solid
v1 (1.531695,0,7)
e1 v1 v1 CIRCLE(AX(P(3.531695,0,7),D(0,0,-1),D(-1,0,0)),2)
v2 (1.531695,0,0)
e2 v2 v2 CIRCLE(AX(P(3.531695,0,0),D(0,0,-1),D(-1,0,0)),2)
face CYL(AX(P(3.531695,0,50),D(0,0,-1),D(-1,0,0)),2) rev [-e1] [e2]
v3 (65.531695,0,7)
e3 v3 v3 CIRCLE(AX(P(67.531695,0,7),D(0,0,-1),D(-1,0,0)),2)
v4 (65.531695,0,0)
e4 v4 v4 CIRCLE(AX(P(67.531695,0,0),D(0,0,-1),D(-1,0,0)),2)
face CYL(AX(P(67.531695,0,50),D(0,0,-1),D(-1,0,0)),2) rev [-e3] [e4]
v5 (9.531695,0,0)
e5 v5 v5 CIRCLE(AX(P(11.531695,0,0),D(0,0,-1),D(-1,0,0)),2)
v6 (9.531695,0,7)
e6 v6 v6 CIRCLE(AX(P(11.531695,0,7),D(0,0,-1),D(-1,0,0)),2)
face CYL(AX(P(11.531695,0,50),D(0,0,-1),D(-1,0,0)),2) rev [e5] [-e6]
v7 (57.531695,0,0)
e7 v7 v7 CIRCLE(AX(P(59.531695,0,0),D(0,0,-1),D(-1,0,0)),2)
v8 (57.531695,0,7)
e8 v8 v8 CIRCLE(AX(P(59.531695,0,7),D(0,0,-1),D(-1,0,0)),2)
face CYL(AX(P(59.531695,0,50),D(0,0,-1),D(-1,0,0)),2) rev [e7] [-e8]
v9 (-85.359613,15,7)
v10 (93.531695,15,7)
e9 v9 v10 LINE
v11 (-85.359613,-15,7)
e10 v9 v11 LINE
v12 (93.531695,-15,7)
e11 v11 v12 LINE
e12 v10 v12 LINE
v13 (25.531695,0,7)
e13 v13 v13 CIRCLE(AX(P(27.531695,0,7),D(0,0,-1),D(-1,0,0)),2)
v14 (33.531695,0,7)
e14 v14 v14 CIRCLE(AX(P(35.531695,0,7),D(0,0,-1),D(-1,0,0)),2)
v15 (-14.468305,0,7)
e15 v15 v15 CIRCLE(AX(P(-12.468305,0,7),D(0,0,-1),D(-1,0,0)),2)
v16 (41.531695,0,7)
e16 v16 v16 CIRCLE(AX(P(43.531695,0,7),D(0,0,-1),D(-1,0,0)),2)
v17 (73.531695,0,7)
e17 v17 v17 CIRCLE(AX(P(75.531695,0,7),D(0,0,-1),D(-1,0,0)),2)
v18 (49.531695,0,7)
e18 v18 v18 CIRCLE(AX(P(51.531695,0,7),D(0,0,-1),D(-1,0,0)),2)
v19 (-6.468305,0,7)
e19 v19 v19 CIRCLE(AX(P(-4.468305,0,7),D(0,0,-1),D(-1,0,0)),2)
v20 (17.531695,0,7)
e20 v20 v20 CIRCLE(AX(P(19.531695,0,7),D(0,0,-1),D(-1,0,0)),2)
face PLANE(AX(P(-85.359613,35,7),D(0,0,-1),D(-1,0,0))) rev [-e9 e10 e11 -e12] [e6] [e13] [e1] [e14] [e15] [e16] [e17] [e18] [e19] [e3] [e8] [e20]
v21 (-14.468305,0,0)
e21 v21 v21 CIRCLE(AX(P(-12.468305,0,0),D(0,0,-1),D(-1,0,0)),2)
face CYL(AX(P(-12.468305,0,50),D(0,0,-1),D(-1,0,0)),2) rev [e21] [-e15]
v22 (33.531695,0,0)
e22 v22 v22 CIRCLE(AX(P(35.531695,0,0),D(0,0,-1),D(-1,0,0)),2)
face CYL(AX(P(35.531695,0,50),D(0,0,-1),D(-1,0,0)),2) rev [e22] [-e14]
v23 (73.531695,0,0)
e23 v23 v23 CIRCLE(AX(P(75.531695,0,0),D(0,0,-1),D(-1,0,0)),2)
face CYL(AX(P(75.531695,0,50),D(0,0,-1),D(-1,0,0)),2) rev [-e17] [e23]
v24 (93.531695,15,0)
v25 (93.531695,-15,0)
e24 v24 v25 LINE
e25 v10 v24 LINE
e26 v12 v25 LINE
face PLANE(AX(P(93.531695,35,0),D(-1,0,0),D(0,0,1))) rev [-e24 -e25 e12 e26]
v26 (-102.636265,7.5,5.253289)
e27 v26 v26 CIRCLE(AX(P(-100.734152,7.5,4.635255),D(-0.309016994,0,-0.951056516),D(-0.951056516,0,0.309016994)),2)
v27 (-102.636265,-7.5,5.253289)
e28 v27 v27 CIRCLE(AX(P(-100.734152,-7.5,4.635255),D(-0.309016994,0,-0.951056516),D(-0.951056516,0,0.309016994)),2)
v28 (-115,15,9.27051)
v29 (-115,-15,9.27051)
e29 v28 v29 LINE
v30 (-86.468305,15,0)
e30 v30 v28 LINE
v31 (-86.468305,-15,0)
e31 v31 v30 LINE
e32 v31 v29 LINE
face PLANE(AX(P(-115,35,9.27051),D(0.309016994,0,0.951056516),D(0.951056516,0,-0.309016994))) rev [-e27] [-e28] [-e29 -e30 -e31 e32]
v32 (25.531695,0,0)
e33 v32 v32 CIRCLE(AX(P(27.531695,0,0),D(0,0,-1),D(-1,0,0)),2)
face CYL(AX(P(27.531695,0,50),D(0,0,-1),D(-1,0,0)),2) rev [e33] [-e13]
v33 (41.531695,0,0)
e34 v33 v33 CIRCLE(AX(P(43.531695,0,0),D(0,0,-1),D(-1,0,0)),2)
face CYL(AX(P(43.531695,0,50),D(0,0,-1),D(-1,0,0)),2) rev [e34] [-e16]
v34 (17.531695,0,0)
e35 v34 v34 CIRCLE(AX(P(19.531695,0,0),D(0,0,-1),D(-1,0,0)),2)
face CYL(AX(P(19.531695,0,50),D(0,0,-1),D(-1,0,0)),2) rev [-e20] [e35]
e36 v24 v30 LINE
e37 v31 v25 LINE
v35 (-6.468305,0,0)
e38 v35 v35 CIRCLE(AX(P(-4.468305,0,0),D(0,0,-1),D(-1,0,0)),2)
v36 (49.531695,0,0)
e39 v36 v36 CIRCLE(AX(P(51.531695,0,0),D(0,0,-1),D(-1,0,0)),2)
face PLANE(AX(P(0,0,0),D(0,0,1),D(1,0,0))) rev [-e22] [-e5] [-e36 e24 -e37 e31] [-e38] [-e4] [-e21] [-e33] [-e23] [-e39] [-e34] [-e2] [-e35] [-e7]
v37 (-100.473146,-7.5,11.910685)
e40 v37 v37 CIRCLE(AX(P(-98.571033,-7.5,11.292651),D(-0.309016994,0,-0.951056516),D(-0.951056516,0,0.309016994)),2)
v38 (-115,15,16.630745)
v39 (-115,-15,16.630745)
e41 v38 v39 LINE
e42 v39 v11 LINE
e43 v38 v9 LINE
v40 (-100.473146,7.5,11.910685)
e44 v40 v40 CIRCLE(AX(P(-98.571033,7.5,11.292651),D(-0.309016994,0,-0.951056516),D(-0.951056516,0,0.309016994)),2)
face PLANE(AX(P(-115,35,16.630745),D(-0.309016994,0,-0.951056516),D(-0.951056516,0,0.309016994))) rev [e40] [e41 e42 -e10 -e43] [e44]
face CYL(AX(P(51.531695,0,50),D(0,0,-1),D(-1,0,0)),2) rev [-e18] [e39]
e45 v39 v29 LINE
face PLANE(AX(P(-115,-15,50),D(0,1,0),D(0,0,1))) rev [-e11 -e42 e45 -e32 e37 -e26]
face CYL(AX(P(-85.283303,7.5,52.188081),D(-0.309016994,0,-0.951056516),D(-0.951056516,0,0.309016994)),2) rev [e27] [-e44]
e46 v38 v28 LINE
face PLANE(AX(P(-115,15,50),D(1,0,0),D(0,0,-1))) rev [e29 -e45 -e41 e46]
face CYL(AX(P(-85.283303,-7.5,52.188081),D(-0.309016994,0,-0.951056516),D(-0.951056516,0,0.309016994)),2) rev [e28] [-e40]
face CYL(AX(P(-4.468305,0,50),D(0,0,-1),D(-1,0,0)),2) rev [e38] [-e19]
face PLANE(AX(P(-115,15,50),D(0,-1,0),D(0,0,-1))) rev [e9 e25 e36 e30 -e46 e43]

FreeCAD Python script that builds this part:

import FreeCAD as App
import Part
import Sketcher
Q = App.Units.Quantity


def add_polygon(sketch, points):
    """Adds a closed chain of lines whose ends are joined by coincident constraints."""
    first, n = sketch.GeometryCount, len(points)
    for a, b in zip(points, points[1:] + points[:1]):
        sketch.addGeometry(Part.LineSegment(App.Vector(*a, 0), App.Vector(*b, 0)), False)
    for i in range(n):
        sketch.addConstraint(Sketcher.Constraint("Coincident", first + i, 2, first + (i + 1) % n, 1))

doc = App.newDocument("Part")
params = doc.addObject("Spreadsheet::Sheet", "Params")
for row, (alias, value) in enumerate([
    ("sketch1_width", "230 mm"),
    ("sketch1_height", "30 mm"),
    ("pad1_length", "50 mm"),
    ("sketch2_length", "30 mm"),
    ("pocket1_length", "50 mm"),
    ("sketch3_height", "50 mm"),
    ("pocket2_length", "50 mm"),
    ("sketch4_height", "43 mm"),
    ("pocket3_length", "50 mm"),
    ("sketch5_diameter", "4 mm"),
    ("pocket4_length", "50 mm"),
    ("sketch6_diameter", "4 mm"),
    ("pocket5_length", "50 mm"),
], start=1):
    params.set(f"A{row}", alias)
    params.set(f"B{row}", "=" + value)
    params.setAlias(f"B{row}", alias)

body = doc.addObject("PartDesign::Body", "Body")

# Sketch on XY plane
sketch1 = body.newObject("Sketcher::SketchObject", "Sketch")
sketch1.AttachmentSupport = (doc.getObject("XY_Plane"), [""])
sketch1.MapMode = "FlatFace"
add_polygon(sketch1, [(-115, 15), (-115, -15), (115, -15), (115, 15)])  # lines 0-3
sketch1.addConstraint(Sketcher.Constraint("Vertical", 0))
sketch1.addConstraint(Sketcher.Constraint("Horizontal", 1))
sketch1.addConstraint(Sketcher.Constraint("Vertical", 2))
sketch1.addConstraint(Sketcher.Constraint("Horizontal", 3))
sketch1.addConstraint(Sketcher.Constraint("Symmetric", 0, 2, 2, 2, -1, 1))
sketch1.addConstraint(Sketcher.Constraint("DistanceX", 1, 1, 1, 2, 230.0))
sketch1.addConstraint(Sketcher.Constraint("DistanceY", 0, 2, 0, 1, 30.0))
sketch1.setExpression("Constraints[9]", "Params.sketch1_width")
sketch1.setExpression("Constraints[10]", "Params.sketch1_height")
pad1 = body.newObject("PartDesign::Pad", "Pad")
pad1.Profile = sketch1
pad1.setExpression("Length", "Params.pad1_length")

# Sketch on XZ plane
sketch2 = body.newObject("Sketcher::SketchObject", "Sketch001")
sketch2.AttachmentSupport = (doc.getObject("XZ_Plane"), [""])
sketch2.MapMode = "FlatFace"
sketch2.AttachmentOffset = App.Placement(App.Vector(0, 0, 15), App.Rotation())
add_polygon(sketch2, [(-86, 0), (-115, 9), (-115, 0)])  # lines 0-2
sketch2.addConstraint(Sketcher.Constraint("Vertical", 1))
sketch2.addConstraint(Sketcher.Constraint("Horizontal", 2))
sketch2.addConstraint(Sketcher.Constraint("PointOnObject", 1, 2, -1))
sketch2.addConstraint(Sketcher.Constraint("Angle", 0, Q("162 deg")))
sketch2.addConstraint(Sketcher.Constraint("Distance", 0, 30.0))
sketch2.addConstraint(Sketcher.Constraint("DistanceX", 0, 2, -1, 1, 115.0))
sketch2.setExpression("Constraints[7]", "Params.sketch2_length")
pocket1 = body.newObject("PartDesign::Pocket", "Pocket")
pocket1.Profile = sketch2
pocket1.setExpression("Length", "Params.pocket1_length")

# Sketch on XZ plane
sketch3 = body.newObject("Sketcher::SketchObject", "Sketch002")
sketch3.AttachmentSupport = (doc.getObject("XZ_Plane"), [""])
sketch3.MapMode = "FlatFace"
sketch3.AttachmentOffset = App.Placement(App.Vector(0, 0, 15), App.Rotation())
add_polygon(sketch3, [(94, 50), (94, 0), (115, 0), (115, 50)])  # lines 0-3
sketch3.addConstraint(Sketcher.Constraint("Vertical", 0))
sketch3.addConstraint(Sketcher.Constraint("Horizontal", 1))
sketch3.addConstraint(Sketcher.Constraint("Vertical", 2))
sketch3.addConstraint(Sketcher.Constraint("Horizontal", 3))
sketch3.addConstraint(Sketcher.Constraint("PointOnObject", 0, 2, -1))
sketch3.addConstraint(Sketcher.Constraint("DistanceY", 0, 2, 0, 1, 50.0))
sketch3.addConstraint(Sketcher.Constraint("DistanceX", -1, 1, 1, 2, 115.0))
sketch3.addConstraint(Sketcher.Constraint("DistanceX", 1, 1, 1, 2, 21.468305))
sketch3.setExpression("Constraints[9]", "Params.sketch3_height")
pocket2 = body.newObject("PartDesign::Pocket", "Pocket001")
pocket2.Profile = sketch3
pocket2.setExpression("Length", "Params.pocket2_length")

# Sketch on XZ plane
sketch4 = body.newObject("Sketcher::SketchObject", "Sketch003")
sketch4.AttachmentSupport = (doc.getObject("XZ_Plane"), [""])
sketch4.MapMode = "FlatFace"
sketch4.AttachmentOffset = App.Placement(App.Vector(0, 0, 15), App.Rotation())
add_polygon(sketch4, [(-115, 17), (-85, 7), (94, 7), (94, 50), (-115, 50)])  # lines 0-4
sketch4.addConstraint(Sketcher.Constraint("Horizontal", 1))
sketch4.addConstraint(Sketcher.Constraint("Vertical", 2))
sketch4.addConstraint(Sketcher.Constraint("Horizontal", 3))
sketch4.addConstraint(Sketcher.Constraint("Vertical", 4))
sketch4.addConstraint(Sketcher.Constraint("DistanceY", 2, 1, 2, 2, 43.0))
sketch4.addConstraint(Sketcher.Constraint("Angle", 0, Q("-18 deg")))
sketch4.addConstraint(Sketcher.Constraint("DistanceY", -1, 1, 0, 2, 7.0))
sketch4.addConstraint(Sketcher.Constraint("DistanceX", 3, 2, -1, 1, 115.0))
sketch4.addConstraint(Sketcher.Constraint("DistanceX", 1, 1, 1, 2, 178.891309))
sketch4.addConstraint(Sketcher.Constraint("DistanceX", 3, 2, 3, 1, 208.531695))
sketch4.setExpression("Constraints[9]", "Params.sketch4_height")
pocket3 = body.newObject("PartDesign::Pocket", "Pocket002")
pocket3.Profile = sketch4
pocket3.setExpression("Length", "Params.pocket3_length")

# Sketch on an angled plane
sketch5 = body.newObject("Sketcher::SketchObject", "Sketch004")
sketch5.Placement = App.Placement(App.Vector(-8.256988, 0, -25.412397), App.Rotation(App.Vector(-0.951056516, 0, 0.309016994), App.Vector(0, 0.999999999, 0), App.Vector(-0.309016994, 0, -0.951056516), "ZXY"))
sketch5.addGeometry(Part.Circle(App.Vector(97.2, 7.5, 0), App.Vector(0, 0, 1), 2), False)
sketch5.addGeometry(Part.Circle(App.Vector(97.2, -7.5, 0), App.Vector(0, 0, 1), 2), False)
sketch5.addConstraint(Sketcher.Constraint("Equal", 0, 1))
sketch5.addConstraint(Sketcher.Constraint("Symmetric", 0, 3, 1, 3, -1))
sketch5.addConstraint(Sketcher.Constraint("Diameter", 0, 4.0))
sketch5.addConstraint(Sketcher.Constraint("DistanceY", 1, 3, 0, 3, 15.0))
sketch5.addConstraint(Sketcher.Constraint("DistanceX", -1, 1, 0, 3, 97.236244))
sketch5.setExpression("Constraints[2]", "Params.sketch5_diameter")
pocket4 = body.newObject("PartDesign::Pocket", "Pocket003")
pocket4.Profile = sketch5
pocket4.setExpression("Length", "Params.pocket4_length")

# Sketch on XY plane
sketch6 = body.newObject("Sketcher::SketchObject", "Sketch005")
sketch6.AttachmentSupport = (doc.getObject("XY_Plane"), [""])
sketch6.MapMode = "FlatFace"
sketch6.addGeometry(Part.Circle(App.Vector(51.5, 0, 0), App.Vector(0, 0, 1), 2), False)
sketch6.addGeometry(Part.Circle(App.Vector(59.5, 0, 0), App.Vector(0, 0, 1), 2), False)
sketch6.addGeometry(Part.Circle(App.Vector(67.5, 0, 0), App.Vector(0, 0, 1), 2), False)
sketch6.addGeometry(Part.Circle(App.Vector(75.5, 0, 0), App.Vector(0, 0, 1), 2), False)
sketch6.addGeometry(Part.Circle(App.Vector(43.5, 0, 0), App.Vector(0, 0, 1), 2), False)
sketch6.addGeometry(Part.Circle(App.Vector(35.5, 0, 0), App.Vector(0, 0, 1), 2), False)
sketch6.addGeometry(Part.Circle(App.Vector(27.5, 0, 0), App.Vector(0, 0, 1), 2), False)
sketch6.addGeometry(Part.Circle(App.Vector(19.5, 0, 0), App.Vector(0, 0, 1), 2), False)
sketch6.addGeometry(Part.Circle(App.Vector(11.5, 0, 0), App.Vector(0, 0, 1), 2), False)
sketch6.addGeometry(Part.Circle(App.Vector(3.5, 0, 0), App.Vector(0, 0, 1), 2), False)
sketch6.addGeometry(Part.Circle(App.Vector(-4.5, 0, 0), App.Vector(0, 0, 1), 2), False)
sketch6.addGeometry(Part.Circle(App.Vector(-12.5, 0, 0), App.Vector(0, 0, 1), 2), False)
sketch6.addConstraint(Sketcher.Constraint("Equal", 0, 1))
sketch6.addConstraint(Sketcher.Constraint("Equal", 1, 2))
sketch6.addConstraint(Sketcher.Constraint("Equal", 2, 3))
sketch6.addConstraint(Sketcher.Constraint("Equal", 3, 4))
sketch6.addConstraint(Sketcher.Constraint("Equal", 4, 5))
sketch6.addConstraint(Sketcher.Constraint("Equal", 5, 6))
sketch6.addConstraint(Sketcher.Constraint("Equal", 6, 7))
sketch6.addConstraint(Sketcher.Constraint("Equal", 7, 8))
sketch6.addConstraint(Sketcher.Constraint("Equal", 8, 9))
sketch6.addConstraint(Sketcher.Constraint("Equal", 9, 10))
sketch6.addConstraint(Sketcher.Constraint("Equal", 10, 11))
sketch6.addConstraint(Sketcher.Constraint("PointOnObject", 0, 3, -1))
sketch6.addConstraint(Sketcher.Constraint("PointOnObject", 1, 3, -1))
sketch6.addConstraint(Sketcher.Constraint("PointOnObject", 2, 3, -1))
sketch6.addConstraint(Sketcher.Constraint("PointOnObject", 3, 3, -1))
sketch6.addConstraint(Sketcher.Constraint("PointOnObject", 4, 3, -1))
sketch6.addConstraint(Sketcher.Constraint("PointOnObject", 5, 3, -1))
sketch6.addConstraint(Sketcher.Constraint("PointOnObject", 6, 3, -1))
sketch6.addConstraint(Sketcher.Constraint("PointOnObject", 7, 3, -1))
sketch6.addConstraint(Sketcher.Constraint("PointOnObject", 8, 3, -1))
sketch6.addConstraint(Sketcher.Constraint("PointOnObject", 9, 3, -1))
sketch6.addConstraint(Sketcher.Constraint("PointOnObject", 10, 3, -1))
sketch6.addConstraint(Sketcher.Constraint("PointOnObject", 11, 3, -1))
sketch6.addConstraint(Sketcher.Constraint("Diameter", 0, 4.0))
sketch6.addConstraint(Sketcher.Constraint("DistanceX", 0, 3, 1, 3, 8.0))
sketch6.addConstraint(Sketcher.Constraint("DistanceX", 1, 3, 2, 3, 8.0))
sketch6.addConstraint(Sketcher.Constraint("DistanceX", 2, 3, 3, 3, 8.0))
sketch6.addConstraint(Sketcher.Constraint("DistanceX", 4, 3, 0, 3, 8.0))
sketch6.addConstraint(Sketcher.Constraint("DistanceX", 5, 3, 4, 3, 8.0))
sketch6.addConstraint(Sketcher.Constraint("DistanceX", 6, 3, 5, 3, 8.0))
sketch6.addConstraint(Sketcher.Constraint("DistanceX", 7, 3, 6, 3, 8.0))
sketch6.addConstraint(Sketcher.Constraint("DistanceX", 8, 3, 7, 3, 8.0))
sketch6.addConstraint(Sketcher.Constraint("DistanceX", 9, 3, 8, 3, 8.0))
sketch6.addConstraint(Sketcher.Constraint("DistanceX", 10, 3, 9, 3, 8.0))
sketch6.addConstraint(Sketcher.Constraint("DistanceX", 11, 3, 10, 3, 8.0))
sketch6.addConstraint(Sketcher.Constraint("DistanceX", -1, 1, 0, 3, 51.531695))
sketch6.setExpression("Constraints[23]", "Params.sketch6_diameter")
pocket5 = body.newObject("PartDesign::Pocket", "Pocket004")
pocket5.Profile = sketch6
pocket5.setExpression("Length", "Params.pocket5_length")
pocket5.Reversed = True

doc.recompute()
